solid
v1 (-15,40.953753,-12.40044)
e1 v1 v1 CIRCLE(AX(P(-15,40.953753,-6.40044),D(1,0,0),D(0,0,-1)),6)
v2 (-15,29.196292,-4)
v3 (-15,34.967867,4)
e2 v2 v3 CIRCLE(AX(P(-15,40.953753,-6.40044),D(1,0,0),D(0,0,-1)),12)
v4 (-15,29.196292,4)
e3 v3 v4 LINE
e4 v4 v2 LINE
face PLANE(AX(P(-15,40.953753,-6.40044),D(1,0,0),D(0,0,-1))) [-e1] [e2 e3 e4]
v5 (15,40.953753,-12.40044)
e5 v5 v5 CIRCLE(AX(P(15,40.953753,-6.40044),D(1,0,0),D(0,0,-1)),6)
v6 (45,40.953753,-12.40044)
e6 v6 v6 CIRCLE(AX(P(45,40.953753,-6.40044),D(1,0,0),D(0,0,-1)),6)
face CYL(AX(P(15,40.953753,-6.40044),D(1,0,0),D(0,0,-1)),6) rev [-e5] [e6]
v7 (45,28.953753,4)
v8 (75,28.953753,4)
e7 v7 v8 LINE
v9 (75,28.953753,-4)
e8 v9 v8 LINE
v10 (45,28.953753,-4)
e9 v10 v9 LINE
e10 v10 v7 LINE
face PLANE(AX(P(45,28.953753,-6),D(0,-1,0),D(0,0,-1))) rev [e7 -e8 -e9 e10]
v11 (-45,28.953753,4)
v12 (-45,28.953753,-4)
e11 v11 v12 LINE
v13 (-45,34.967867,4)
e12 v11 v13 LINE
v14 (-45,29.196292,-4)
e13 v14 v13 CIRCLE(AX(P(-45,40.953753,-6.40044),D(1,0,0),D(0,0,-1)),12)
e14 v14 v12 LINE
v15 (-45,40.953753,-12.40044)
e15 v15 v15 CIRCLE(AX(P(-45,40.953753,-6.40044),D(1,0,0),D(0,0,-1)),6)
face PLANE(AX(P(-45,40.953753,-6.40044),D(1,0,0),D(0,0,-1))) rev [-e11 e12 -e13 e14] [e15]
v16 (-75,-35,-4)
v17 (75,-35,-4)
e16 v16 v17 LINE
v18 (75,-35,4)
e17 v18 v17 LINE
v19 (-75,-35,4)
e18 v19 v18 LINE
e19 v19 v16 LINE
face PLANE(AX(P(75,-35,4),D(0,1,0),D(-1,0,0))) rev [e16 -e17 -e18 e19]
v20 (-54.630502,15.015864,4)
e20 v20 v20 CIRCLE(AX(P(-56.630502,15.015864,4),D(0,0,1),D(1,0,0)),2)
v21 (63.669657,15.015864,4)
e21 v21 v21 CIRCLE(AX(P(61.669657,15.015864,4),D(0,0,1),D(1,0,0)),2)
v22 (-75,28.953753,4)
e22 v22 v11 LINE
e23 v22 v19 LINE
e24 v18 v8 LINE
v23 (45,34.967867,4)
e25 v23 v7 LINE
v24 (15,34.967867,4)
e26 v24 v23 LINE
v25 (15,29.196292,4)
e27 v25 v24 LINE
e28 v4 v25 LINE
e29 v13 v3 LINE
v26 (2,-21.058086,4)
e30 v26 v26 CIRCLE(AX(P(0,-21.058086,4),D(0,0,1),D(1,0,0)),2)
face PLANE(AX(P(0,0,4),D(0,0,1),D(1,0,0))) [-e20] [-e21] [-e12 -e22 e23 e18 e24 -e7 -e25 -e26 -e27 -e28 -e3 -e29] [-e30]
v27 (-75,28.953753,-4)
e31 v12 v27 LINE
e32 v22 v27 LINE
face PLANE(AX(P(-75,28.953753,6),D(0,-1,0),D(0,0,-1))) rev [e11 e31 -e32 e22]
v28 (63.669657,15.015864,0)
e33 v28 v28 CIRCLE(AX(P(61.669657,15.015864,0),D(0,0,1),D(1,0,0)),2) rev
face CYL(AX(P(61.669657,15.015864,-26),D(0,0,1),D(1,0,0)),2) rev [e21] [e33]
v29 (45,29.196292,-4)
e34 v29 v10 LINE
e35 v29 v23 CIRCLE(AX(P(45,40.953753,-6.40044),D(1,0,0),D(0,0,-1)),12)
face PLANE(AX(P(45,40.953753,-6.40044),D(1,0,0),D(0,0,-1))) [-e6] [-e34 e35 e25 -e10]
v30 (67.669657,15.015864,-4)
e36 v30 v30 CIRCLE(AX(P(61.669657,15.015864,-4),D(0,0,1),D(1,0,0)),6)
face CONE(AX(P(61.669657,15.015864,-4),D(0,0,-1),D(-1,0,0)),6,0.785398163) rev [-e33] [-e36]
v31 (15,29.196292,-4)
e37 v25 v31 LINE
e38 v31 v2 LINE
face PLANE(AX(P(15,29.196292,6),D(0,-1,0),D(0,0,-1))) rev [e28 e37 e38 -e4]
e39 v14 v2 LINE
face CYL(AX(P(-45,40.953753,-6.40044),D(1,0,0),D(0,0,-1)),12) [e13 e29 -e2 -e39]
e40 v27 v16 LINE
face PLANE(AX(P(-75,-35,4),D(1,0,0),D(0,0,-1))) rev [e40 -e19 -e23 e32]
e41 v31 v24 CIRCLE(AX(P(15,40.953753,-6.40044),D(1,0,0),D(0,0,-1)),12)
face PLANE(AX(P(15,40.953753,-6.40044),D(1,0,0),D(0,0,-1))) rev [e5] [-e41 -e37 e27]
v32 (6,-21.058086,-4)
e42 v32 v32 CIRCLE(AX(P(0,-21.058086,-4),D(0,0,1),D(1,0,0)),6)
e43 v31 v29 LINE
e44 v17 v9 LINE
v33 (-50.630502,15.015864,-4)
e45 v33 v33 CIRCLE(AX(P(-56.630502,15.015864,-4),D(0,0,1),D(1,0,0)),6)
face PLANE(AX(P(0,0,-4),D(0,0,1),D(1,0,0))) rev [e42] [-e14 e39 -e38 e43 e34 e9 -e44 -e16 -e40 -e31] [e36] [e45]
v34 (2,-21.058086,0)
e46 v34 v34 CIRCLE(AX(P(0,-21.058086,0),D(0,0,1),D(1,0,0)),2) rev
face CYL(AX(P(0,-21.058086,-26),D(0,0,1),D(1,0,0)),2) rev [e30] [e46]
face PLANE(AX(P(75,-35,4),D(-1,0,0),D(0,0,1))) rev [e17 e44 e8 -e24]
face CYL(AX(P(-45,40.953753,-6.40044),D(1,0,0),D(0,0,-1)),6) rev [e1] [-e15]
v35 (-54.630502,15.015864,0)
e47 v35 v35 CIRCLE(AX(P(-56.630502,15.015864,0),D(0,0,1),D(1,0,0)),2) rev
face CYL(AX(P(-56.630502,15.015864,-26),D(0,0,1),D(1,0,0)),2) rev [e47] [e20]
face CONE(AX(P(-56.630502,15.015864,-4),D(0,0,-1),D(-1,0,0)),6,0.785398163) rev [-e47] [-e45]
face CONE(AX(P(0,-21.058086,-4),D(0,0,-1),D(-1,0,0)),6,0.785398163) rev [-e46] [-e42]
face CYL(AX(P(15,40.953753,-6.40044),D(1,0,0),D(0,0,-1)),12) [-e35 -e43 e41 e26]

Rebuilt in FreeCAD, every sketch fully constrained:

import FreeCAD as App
import Part
import Sketcher
Q = App.Units.Quantity


def edges_at(feature, points):
    """Names of the edges that pass closest to the given points."""
    edges = feature.Shape.Edges
    near = lambda p: min(range(len(edges)), key=lambda i: edges[i].distToShape(Part.Vertex(*p))[0])
    return sorted({f"Edge{near(p) + 1}" for p in points})

doc = App.newDocument("Part")
body = doc.addObject("PartDesign::Body", "Body")

# Sketch on XY plane
sketch1 = body.newObject("Sketcher::SketchObject", "Sketch")
sketch1.AttachmentSupport = (doc.getObject("XY_Plane"), [""])
sketch1.MapMode = "FlatFace"
sketch1.addGeometry(Part.LineSegment(App.Vector(-75, 35, 0), App.Vector(-75, -35, 0)), False)
sketch1.addGeometry(Part.LineSegment(App.Vector(-75, -35, 0), App.Vector(75, -35, 0)), False)
sketch1.addGeometry(Part.LineSegment(App.Vector(75, -35, 0), App.Vector(75, 35, 0)), False)
sketch1.addGeometry(Part.LineSegment(App.Vector(75, 35, 0), App.Vector(-75, 35, 0)), False)
sketch1.addConstraint(Sketcher.Constraint("Coincident", 0, 2, 1, 1))
sketch1.addConstraint(Sketcher.Constraint("Coincident", 1, 2, 2, 1))
sketch1.addConstraint(Sketcher.Constraint("Coincident", 2, 2, 3, 1))
sketch1.addConstraint(Sketcher.Constraint("Coincident", 3, 2, 0, 1))
sketch1.addConstraint(Sketcher.Constraint("Vertical", 0))
sketch1.addConstraint(Sketcher.Constraint("Horizontal", 1))
sketch1.addConstraint(Sketcher.Constraint("Vertical", 2))
sketch1.addConstraint(Sketcher.Constraint("Horizontal", 3))
sketch1.addConstraint(Sketcher.Constraint("Symmetric", 0, 2, 2, 2, -1, 1))
sketch1.addConstraint(Sketcher.Constraint("DistanceX", 1, 1, 1, 2, Q("150 mm")))
sketch1.addConstraint(Sketcher.Constraint("DistanceY", 0, 2, 0, 1, Q("70 mm")))
pad1 = body.newObject("PartDesign::Pad", "Pad")
pad1.Profile = sketch1
pad1.Length = 8
pad1.Midplane = True

# Sketch on XY plane
sketch2 = body.newObject("Sketcher::SketchObject", "Sketch001")
sketch2.AttachmentSupport = (doc.getObject("XY_Plane"), [""])
sketch2.MapMode = "FlatFace"
sketch2.AttachmentOffset = App.Placement(App.Vector(0, 0, 4), App.Rotation())
sketch2.addGeometry(Part.Circle(App.Vector(-56.630502, 15.015864, 0), App.Vector(0, 0, 1), 2), False)
sketch2.addGeometry(Part.Circle(App.Vector(0, -21.058086, 0), App.Vector(0, 0, 1), 2), False)
sketch2.addGeometry(Part.Circle(App.Vector(61.669657, 15.015864, 0), App.Vector(0, 0, 1), 2), False)
sketch2.addConstraint(Sketcher.Constraint("Equal", 0, 1))
sketch2.addConstraint(Sketcher.Constraint("Equal", 1, 2))
sketch2.addConstraint(Sketcher.Constraint("PointOnObject", 1, 3, -2))
sketch2.addConstraint(Sketcher.Constraint("Horizontal", 0, 3, 2, 3))
sketch2.addConstraint(Sketcher.Constraint("Diameter", 0, Q("4 mm")))
sketch2.addConstraint(Sketcher.Constraint("DistanceX", 0, 3, -1, 1, Q("56.630502 mm")))
sketch2.addConstraint(Sketcher.Constraint("DistanceY", 1, 3, 0, 3, Q("36.07395 mm")))
sketch2.addConstraint(Sketcher.Constraint("DistanceX", 0, 3, 2, 3, Q("118.300159 mm")))
sketch2.addConstraint(Sketcher.Constraint("DistanceY", -1, 1, 0, 3, Q("15.015864 mm")))
pocket1 = body.newObject("PartDesign::Pocket", "Pocket")
pocket1.Profile = sketch2
pocket1.Length = 30

# Sketch on YZ plane
sketch3 = body.newObject("Sketcher::SketchObject", "Sketch002")
sketch3.AttachmentSupport = (doc.getObject("YZ_Plane"), [""])
sketch3.MapMode = "FlatFace"
sketch3.AttachmentOffset = App.Placement(App.Vector(0, 0, 45), App.Rotation())
sketch3.addGeometry(Part.Circle(App.Vector(40.953753, -6.40044, 0), App.Vector(0, 0, 1), 12), False)
sketch3.addGeometry(Part.Circle(App.Vector(40.953753, -6.40044, 0), App.Vector(0, 0, 1), 6), False)
sketch3.addConstraint(Sketcher.Constraint("Coincident", 1, 3, 0, 3))
sketch3.addConstraint(Sketcher.Constraint("Diameter", 0, Q("24 mm")))
sketch3.addConstraint(Sketcher.Constraint("Diameter", 1, Q("12 mm")))
sketch3.addConstraint(Sketcher.Constraint("DistanceY", 0, 3, -1, 1, Q("6.40044 mm")))
sketch3.addConstraint(Sketcher.Constraint("DistanceX", -1, 1, 0, 3, Q("40.953753 mm")))
pad2 = body.newObject("PartDesign::Pad", "Pad001")
pad2.Profile = sketch3
pad2.Length = 30
pad2.Reversed = True
doc.recompute()

linearpattern = body.newObject("PartDesign::LinearPattern", "LinearPattern")
linearpattern.Originals = [pad2]
linearpattern.Direction = (doc.getObject("X_Axis"), [""])
linearpattern.Mode = "offset"
linearpattern.Offset = 60
linearpattern.Occurrences = 2
linearpattern.Reversed = True
body.Tip = linearpattern
doc.recompute()

chamfer = body.newObject("PartDesign::Chamfer", "Chamfer")
chamfer.Base = (linearpattern, edges_at(linearpattern, [(-58.631, 15.016, -4), (-2, -21.058, -4), (59.67, 15.016, -4)]))
chamfer.Size = 4

# Sketch on XY plane
sketch4 = body.newObject("Sketcher::SketchObject", "Sketch003")
sketch4.AttachmentSupport = (doc.getObject("XY_Plane"), [""])
sketch4.MapMode = "FlatFace"
sketch4.AttachmentOffset = App.Placement(App.Vector(0, 0, 4), App.Rotation())
sketch4.addGeometry(Part.LineSegment(App.Vector(45, 35, 0), App.Vector(45, 28.953753, 0)), False)
sketch4.addGeometry(Part.LineSegment(App.Vector(45, 28.953753, 0), App.Vector(75, 28.953753, 0)), False)
sketch4.addGeometry(Part.LineSegment(App.Vector(75, 28.953753, 0), App.Vector(75, 35, 0)), False)
sketch4.addGeometry(Part.LineSegment(App.Vector(75, 35, 0), App.Vector(45, 35, 0)), False)
sketch4.addConstraint(Sketcher.Constraint("Coincident", 0, 2, 1, 1))
sketch4.addConstraint(Sketcher.Constraint("Coincident", 1, 2, 2, 1))
sketch4.addConstraint(Sketcher.Constraint("Coincident", 2, 2, 3, 1))
sketch4.addConstraint(Sketcher.Constraint("Coincident", 3, 2, 0, 1))
sketch4.addConstraint(Sketcher.Constraint("Vertical", 0))
sketch4.addConstraint(Sketcher.Constraint("Horizontal", 1))
sketch4.addConstraint(Sketcher.Constraint("Vertical", 2))
sketch4.addConstraint(Sketcher.Constraint("Horizontal", 3))
sketch4.addConstraint(Sketcher.Constraint("DistanceX", 1, 1, 1, 2, Q("30 mm")))
sketch4.addConstraint(Sketcher.Constraint("DistanceX", -1, 1, 0, 2, Q("45 mm")))
sketch4.addConstraint(Sketcher.Constraint("DistanceY", -1, 1, 2, 2, Q("35 mm")))
sketch4.addConstraint(Sketcher.Constraint("DistanceY", 0, 2, 0, 1, Q("6.046247 mm")))
pocket2 = body.newObject("PartDesign::Pocket", "Pocket001")
pocket2.Profile = sketch4
pocket2.Length = 10

# Sketch on XY plane
sketch5 = body.newObject("Sketcher::SketchObject", "Sketch004")
sketch5.AttachmentSupport = (doc.getObject("XY_Plane"), [""])
sketch5.MapMode = "FlatFace"
sketch5.AttachmentOffset = App.Placement(App.Vector(0, 0, -4), App.Rotation())
sketch5.addGeometry(Part.LineSegment(App.Vector(-45, 35, 0), App.Vector(-45, 28.953753, 0)), False)
sketch5.addGeometry(Part.LineSegment(App.Vector(-45, 28.953753, 0), App.Vector(-75, 28.953753, 0)), False)
sketch5.addGeometry(Part.LineSegment(App.Vector(-75, 28.953753, 0), App.Vector(-75, 35, 0)), False)
sketch5.addGeometry(Part.LineSegment(App.Vector(-75, 35, 0), App.Vector(-45, 35, 0)), False)
sketch5.addConstraint(Sketcher.Constraint("Coincident", 0, 2, 1, 1))
sketch5.addConstraint(Sketcher.Constraint("Coincident", 1, 2, 2, 1))
sketch5.addConstraint(Sketcher.Constraint("Coincident", 2, 2, 3, 1))
sketch5.addConstraint(Sketcher.Constraint("Coincident", 3, 2, 0, 1))
sketch5.addConstraint(Sketcher.Constraint("Vertical", 0))
sketch5.addConstraint(Sketcher.Constraint("Horizontal", 1))
sketch5.addConstraint(Sketcher.Constraint("Vertical", 2))
sketch5.addConstraint(Sketcher.Constraint("Horizontal", 3))
sketch5.addConstraint(Sketcher.Constraint("DistanceX", 1, 2, 1, 1, Q("30 mm")))
sketch5.addConstraint(Sketcher.Constraint("DistanceX", 0, 2, -1, 1, Q("45 mm")))
sketch5.addConstraint(Sketcher.Constraint("DistanceY", -1, 1, 2, 2, Q("35 mm")))
sketch5.addConstraint(Sketcher.Constraint("DistanceY", 0, 2, 0, 1, Q("6.046247 mm")))
pocket3 = body.newObject("PartDesign::Pocket", "Pocket002")
pocket3.Profile = sketch5
pocket3.Length = 10
pocket3.Reversed = True

# Sketch on XY plane
sketch6 = body.newObject("Sketcher::SketchObject", "Sketch005")
sketch6.AttachmentSupport = (doc.getObject("XY_Plane"), [""])
sketch6.MapMode = "FlatFace"
sketch6.AttachmentOffset = App.Placement(App.Vector(0, 0, -4), App.Rotation())
sketch6.addGeometry(Part.LineSegment(App.Vector(15, 35, 0), App.Vector(15, 29.196292, 0)), False)
sketch6.addGeometry(Part.LineSegment(App.Vector(15, 29.196292, 0), App.Vector(-15, 29.196292, 0)), False)
sketch6.addGeometry(Part.LineSegment(App.Vector(-15, 29.196292, 0), App.Vector(-15, 35, 0)), False)
sketch6.addGeometry(Part.LineSegment(App.Vector(-15, 35, 0), App.Vector(15, 35, 0)), False)
sketch6.addConstraint(Sketcher.Constraint("Coincident", 0, 2, 1, 1))
sketch6.addConstraint(Sketcher.Constraint("Coincident", 1, 2, 2, 1))
sketch6.addConstraint(Sketcher.Constraint("Coincident", 2, 2, 3, 1))
sketch6.addConstraint(Sketcher.Constraint("Coincident", 3, 2, 0, 1))
sketch6.addConstraint(Sketcher.Constraint("Vertical", 0))
sketch6.addConstraint(Sketcher.Constraint("Horizontal", 1))
sketch6.addConstraint(Sketcher.Constraint("Vertical", 2))
sketch6.addConstraint(Sketcher.Constraint("Horizontal", 3))
sketch6.addConstraint(Sketcher.Constraint("DistanceX", 1, 2, 1, 1, Q("30 mm")))
sketch6.addConstraint(Sketcher.Constraint("DistanceX", -1, 1, 0, 2, Q("15 mm")))
sketch6.addConstraint(Sketcher.Constraint("DistanceY", -1, 1, 2, 2, Q("35 mm")))
sketch6.addConstraint(Sketcher.Constraint("DistanceY", 0, 2, 0, 1, Q("5.803708 mm")))
pocket4 = body.newObject("PartDesign::Pocket", "Pocket003")
pocket4.Profile = sketch6
pocket4.Length = 10
pocket4.Reversed = True

doc.recompute()
